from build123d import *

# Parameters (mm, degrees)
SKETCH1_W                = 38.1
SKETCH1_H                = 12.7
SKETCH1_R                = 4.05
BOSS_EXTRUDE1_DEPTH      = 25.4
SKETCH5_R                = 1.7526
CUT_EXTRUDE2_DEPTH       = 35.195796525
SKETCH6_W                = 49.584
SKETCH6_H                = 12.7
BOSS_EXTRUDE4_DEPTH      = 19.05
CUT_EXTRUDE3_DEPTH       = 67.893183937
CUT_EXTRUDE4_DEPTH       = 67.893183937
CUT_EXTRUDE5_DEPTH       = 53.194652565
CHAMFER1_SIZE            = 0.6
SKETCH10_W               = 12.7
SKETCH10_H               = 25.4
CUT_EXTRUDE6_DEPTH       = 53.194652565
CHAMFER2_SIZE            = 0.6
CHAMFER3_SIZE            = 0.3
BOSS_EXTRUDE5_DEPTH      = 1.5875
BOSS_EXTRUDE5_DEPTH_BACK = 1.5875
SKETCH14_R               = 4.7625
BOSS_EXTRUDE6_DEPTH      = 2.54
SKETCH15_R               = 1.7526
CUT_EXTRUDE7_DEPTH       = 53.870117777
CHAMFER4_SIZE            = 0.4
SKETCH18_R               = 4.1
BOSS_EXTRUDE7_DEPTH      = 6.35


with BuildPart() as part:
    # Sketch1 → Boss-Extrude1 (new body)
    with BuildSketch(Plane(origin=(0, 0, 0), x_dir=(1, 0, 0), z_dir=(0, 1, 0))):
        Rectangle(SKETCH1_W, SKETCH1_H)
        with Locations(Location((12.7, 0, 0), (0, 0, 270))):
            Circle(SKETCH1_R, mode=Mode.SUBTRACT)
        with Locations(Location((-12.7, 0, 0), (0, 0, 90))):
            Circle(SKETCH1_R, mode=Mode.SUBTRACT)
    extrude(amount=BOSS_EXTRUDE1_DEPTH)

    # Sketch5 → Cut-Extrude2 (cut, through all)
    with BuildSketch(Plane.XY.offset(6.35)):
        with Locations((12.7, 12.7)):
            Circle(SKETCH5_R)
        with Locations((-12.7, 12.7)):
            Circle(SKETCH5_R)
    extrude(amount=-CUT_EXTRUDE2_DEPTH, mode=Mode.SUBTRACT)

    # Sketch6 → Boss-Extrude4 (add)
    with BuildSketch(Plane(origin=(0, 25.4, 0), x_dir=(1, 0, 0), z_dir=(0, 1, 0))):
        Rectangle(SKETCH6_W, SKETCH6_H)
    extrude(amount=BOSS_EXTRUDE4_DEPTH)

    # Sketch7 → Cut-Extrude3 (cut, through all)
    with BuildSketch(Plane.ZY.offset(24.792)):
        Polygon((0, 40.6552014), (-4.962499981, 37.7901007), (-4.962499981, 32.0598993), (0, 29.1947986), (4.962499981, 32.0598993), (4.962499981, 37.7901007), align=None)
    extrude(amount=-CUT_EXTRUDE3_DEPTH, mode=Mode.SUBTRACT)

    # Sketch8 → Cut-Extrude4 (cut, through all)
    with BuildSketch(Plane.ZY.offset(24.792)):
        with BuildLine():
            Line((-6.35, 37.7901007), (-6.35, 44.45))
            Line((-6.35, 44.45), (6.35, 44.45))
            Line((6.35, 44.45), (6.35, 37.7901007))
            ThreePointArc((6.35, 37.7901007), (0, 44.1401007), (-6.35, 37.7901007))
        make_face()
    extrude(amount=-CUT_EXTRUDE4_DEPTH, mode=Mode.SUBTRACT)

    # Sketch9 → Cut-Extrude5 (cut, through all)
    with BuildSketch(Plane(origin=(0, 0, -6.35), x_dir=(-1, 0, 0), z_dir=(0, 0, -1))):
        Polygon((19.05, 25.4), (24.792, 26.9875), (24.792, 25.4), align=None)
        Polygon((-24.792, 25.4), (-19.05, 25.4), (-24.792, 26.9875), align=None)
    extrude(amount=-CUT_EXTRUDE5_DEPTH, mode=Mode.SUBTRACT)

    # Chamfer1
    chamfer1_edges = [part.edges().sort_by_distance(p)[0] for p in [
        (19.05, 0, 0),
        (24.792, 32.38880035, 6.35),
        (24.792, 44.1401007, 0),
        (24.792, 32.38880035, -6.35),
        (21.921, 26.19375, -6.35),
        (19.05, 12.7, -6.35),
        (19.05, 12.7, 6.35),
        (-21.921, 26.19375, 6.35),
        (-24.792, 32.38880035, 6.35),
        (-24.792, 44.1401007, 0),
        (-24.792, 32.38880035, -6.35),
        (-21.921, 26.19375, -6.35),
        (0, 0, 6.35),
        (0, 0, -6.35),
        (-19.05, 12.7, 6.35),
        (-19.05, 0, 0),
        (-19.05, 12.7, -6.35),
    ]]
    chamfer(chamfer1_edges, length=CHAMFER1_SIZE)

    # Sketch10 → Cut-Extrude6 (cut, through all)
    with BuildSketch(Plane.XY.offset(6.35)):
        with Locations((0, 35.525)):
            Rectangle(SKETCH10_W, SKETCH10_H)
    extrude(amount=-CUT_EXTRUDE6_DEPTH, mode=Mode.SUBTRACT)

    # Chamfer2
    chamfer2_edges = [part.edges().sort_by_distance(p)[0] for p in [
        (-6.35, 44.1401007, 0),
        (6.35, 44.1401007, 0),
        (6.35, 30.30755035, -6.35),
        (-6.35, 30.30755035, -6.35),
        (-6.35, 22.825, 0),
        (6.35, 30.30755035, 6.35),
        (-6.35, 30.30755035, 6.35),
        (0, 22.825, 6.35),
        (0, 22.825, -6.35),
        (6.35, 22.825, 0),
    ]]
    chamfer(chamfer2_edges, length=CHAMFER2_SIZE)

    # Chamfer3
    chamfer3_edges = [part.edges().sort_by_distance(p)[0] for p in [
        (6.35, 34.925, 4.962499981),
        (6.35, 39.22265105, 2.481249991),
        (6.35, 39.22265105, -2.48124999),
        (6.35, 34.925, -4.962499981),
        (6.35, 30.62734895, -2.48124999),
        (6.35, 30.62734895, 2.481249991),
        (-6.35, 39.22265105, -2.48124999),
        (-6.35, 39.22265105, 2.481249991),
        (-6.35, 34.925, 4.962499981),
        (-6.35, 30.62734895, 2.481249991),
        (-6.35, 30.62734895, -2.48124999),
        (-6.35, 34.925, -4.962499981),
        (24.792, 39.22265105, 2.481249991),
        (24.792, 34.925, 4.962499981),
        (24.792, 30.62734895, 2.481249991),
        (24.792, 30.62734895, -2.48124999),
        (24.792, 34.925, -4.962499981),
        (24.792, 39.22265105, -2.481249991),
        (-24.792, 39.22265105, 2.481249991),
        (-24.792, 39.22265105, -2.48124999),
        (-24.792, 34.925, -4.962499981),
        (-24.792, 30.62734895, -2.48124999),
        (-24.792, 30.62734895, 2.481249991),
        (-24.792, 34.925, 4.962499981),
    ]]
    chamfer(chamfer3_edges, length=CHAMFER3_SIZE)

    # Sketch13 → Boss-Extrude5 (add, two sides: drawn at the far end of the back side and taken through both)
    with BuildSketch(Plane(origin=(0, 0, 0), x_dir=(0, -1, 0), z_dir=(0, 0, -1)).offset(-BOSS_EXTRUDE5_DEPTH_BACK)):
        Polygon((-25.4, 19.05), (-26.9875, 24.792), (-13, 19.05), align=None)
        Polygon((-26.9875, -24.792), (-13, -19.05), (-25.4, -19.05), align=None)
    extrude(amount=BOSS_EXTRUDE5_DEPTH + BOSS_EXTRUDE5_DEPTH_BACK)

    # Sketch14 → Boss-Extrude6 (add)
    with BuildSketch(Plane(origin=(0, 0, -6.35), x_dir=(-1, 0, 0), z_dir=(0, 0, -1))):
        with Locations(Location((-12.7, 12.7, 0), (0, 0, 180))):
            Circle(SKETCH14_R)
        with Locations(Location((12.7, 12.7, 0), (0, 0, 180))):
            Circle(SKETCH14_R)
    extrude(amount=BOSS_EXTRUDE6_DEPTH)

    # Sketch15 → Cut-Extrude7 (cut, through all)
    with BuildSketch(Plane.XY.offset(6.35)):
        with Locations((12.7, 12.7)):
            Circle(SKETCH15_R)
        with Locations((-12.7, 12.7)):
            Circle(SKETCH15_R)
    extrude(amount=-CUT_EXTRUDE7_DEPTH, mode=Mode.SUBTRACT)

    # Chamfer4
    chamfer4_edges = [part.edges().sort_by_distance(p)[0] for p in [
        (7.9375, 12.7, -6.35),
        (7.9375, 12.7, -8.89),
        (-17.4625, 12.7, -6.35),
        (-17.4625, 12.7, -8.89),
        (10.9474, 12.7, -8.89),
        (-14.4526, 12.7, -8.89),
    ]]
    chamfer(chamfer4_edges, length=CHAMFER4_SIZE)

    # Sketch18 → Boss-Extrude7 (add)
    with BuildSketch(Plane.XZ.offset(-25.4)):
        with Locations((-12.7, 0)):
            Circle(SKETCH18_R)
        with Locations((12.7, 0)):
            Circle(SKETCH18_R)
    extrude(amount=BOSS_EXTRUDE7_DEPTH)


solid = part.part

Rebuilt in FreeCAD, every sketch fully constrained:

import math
import FreeCAD as App
import Part
import Sketcher
Q = App.Units.Quantity


def edges_at(feature, points):
    """Names of the edges that pass closest to the given points."""
    edges = feature.Shape.Edges
    near = lambda p: min(range(len(edges)), key=lambda i: edges[i].distToShape(Part.Vertex(*p))[0])
    return sorted({f"Edge{near(p) + 1}" for p in points})

doc = App.newDocument("Part")
body = doc.addObject("PartDesign::Body", "Body")

# Sketch on XZ plane
sketch1 = body.newObject("Sketcher::SketchObject", "Sketch")
sketch1.AttachmentSupport = (doc.getObject("XZ_Plane"), [""])
sketch1.MapMode = "FlatFace"
sketch1.addGeometry([
    Part.LineSegment(App.Vector(-19.1, -6.3, 0), App.Vector(-19.1, 6.3, 0)),  # 0
    Part.LineSegment(App.Vector(-19.1, 6.3, 0), App.Vector(19.1, 6.3, 0)),  # 1
    Part.LineSegment(App.Vector(19.1, 6.3, 0), App.Vector(19.1, -6.3, 0)),  # 2
    Part.LineSegment(App.Vector(19.1, -6.3, 0), App.Vector(-19.1, -6.3, 0)),  # 3
    Part.Circle(App.Vector(-12.7, 0, 0), App.Vector(0, 0, 1), 4),  # 4
    Part.Circle(App.Vector(12.7, 0, 0), App.Vector(0, 0, 1), 4),  # 5
], False)
sketch1.addConstraint([
    Sketcher.Constraint("Coincident", 0, 2, 1, 1),
    Sketcher.Constraint("Coincident", 1, 2, 2, 1),
    Sketcher.Constraint("Coincident", 2, 2, 3, 1),
    Sketcher.Constraint("Coincident", 3, 2, 0, 1),
    Sketcher.Constraint("Vertical", 0),
    Sketcher.Constraint("Horizontal", 1),
    Sketcher.Constraint("Vertical", 2),
    Sketcher.Constraint("Horizontal", 3),
    Sketcher.Constraint("Equal", 4, 5),
    Sketcher.Constraint("Symmetric", 4, 3, 5, 3, -1, 1),
    Sketcher.Constraint("Symmetric", 0, 2, 2, 2, -1, 1),
    Sketcher.Constraint("PointOnObject", 4, 3, -1),
    Sketcher.Constraint("DistanceX", 1, 1, 1, 2, Q("1.5 in")),
    Sketcher.Constraint("DistanceY", 0, 1, 0, 2, Q("0.5 in")),
    Sketcher.Constraint("DistanceX", 4, 3, 5, 3, Q("1 in")),
    Sketcher.Constraint("Diameter", 4, Q("8.1 mm")),
])
pad1 = body.newObject("PartDesign::Pad", "Pad")
pad1.Profile = sketch1
pad1.Length = Q("1 in")
pad1.Reversed = True

# Sketch on XY plane
sketch2 = body.newObject("Sketcher::SketchObject", "Sketch001")
sketch2.AttachmentSupport = (doc.getObject("XY_Plane"), [""])
sketch2.MapMode = "FlatFace"
sketch2.AttachmentOffset = App.Placement(App.Vector(0, 0, 0.25 * 25.4), App.Rotation())
sketch2.addGeometry([
    Part.Circle(App.Vector(12.7, 12.7, 0), App.Vector(0, 0, 1), 1.8),
    Part.Circle(App.Vector(-12.7, 12.7, 0), App.Vector(0, 0, 1), 1.8),
], False)
sketch2.addConstraint([
    Sketcher.Constraint("Equal", 0, 1),
    Sketcher.Constraint("Symmetric", 0, 3, 1, 3, -2),
    Sketcher.Constraint("Diameter", 0, Q("0.138 in")),
    Sketcher.Constraint("DistanceX", 1, 3, 0, 3, Q("1 in")),
    Sketcher.Constraint("DistanceY", -1, 1, 0, 3, Q("0.5 in")),
])
pocket1 = body.newObject("PartDesign::Pocket", "Pocket")
pocket1.Profile = sketch2
pocket1.Type = "ThroughAll"

# Sketch on XZ plane
sketch3 = body.newObject("Sketcher::SketchObject", "Sketch002")
sketch3.AttachmentSupport = (doc.getObject("XZ_Plane"), [""])
sketch3.MapMode = "FlatFace"
sketch3.AttachmentOffset = App.Placement(App.Vector(0, 0, -1 * 25.4), App.Rotation())
sketch3.addGeometry([
    Part.LineSegment(App.Vector(-25, -6, 0), App.Vector(-25, 6, 0)),
    Part.LineSegment(App.Vector(-25, 6, 0), App.Vector(25, 6, 0)),
    Part.LineSegment(App.Vector(25, 6, 0), App.Vector(25, -6, 0)),
    Part.LineSegment(App.Vector(25, -6, 0), App.Vector(-25, -6, 0)),
], False)
sketch3.addConstraint([
    Sketcher.Constraint("Coincident", 0, 2, 1, 1),
    Sketcher.Constraint("Coincident", 1, 2, 2, 1),
    Sketcher.Constraint("Coincident", 2, 2, 3, 1),
    Sketcher.Constraint("Coincident", 3, 2, 0, 1),
    Sketcher.Constraint("Vertical", 0),
    Sketcher.Constraint("Horizontal", 1),
    Sketcher.Constraint("Vertical", 2),
    Sketcher.Constraint("Horizontal", 3),
    Sketcher.Constraint("Symmetric", 0, 2, 2, 2, -1, 1),
    Sketcher.Constraint("DistanceY", 0, 1, 0, 2, Q("0.5 in")),
    Sketcher.Constraint("DistanceX", 1, 1, 1, 2, Q("49.584 mm")),
])
pad2 = body.newObject("PartDesign::Pad", "Pad001")
pad2.Profile = sketch3
pad2.Length = Q("0.75 in")
pad2.Reversed = True

# Sketch on YZ plane
sketch4 = body.newObject("Sketcher::SketchObject", "Sketch003")
sketch4.AttachmentSupport = (doc.getObject("YZ_Plane"), [""])
sketch4.MapMode = "FlatFace"
sketch4.AttachmentOffset = App.Placement(App.Vector(0, 0, -24.792), App.Rotation())
sketch4.addGeometry([
    Part.LineSegment(App.Vector(41, 0, 0), App.Vector(38, -5, 0)),  # 0
    Part.LineSegment(App.Vector(38, -5, 0), App.Vector(32, -5, 0)),  # 1
    Part.LineSegment(App.Vector(32, -5, 0), App.Vector(29, 0, 0)),  # 2
    Part.LineSegment(App.Vector(29, 0, 0), App.Vector(32, 5, 0)),  # 3
    Part.LineSegment(App.Vector(32, 5, 0), App.Vector(38, 5, 0)),  # 4
    Part.LineSegment(App.Vector(38, 5, 0), App.Vector(41, 0, 0)),  # 5
], False)
sketch4.addConstraint([
    Sketcher.Constraint("Coincident", 0, 2, 1, 1),
    Sketcher.Constraint("Coincident", 1, 2, 2, 1),
    Sketcher.Constraint("Coincident", 2, 2, 3, 1),
    Sketcher.Constraint("Coincident", 3, 2, 4, 1),
    Sketcher.Constraint("Coincident", 4, 2, 5, 1),
    Sketcher.Constraint("Coincident", 5, 2, 0, 1),
    Sketcher.Constraint("Horizontal", 1),
    Sketcher.Constraint("Horizontal", 4),
    Sketcher.Constraint("Symmetric", 1, 2, 3, 2, -1),
    Sketcher.Constraint("PointOnObject", 2, 2, -1),
    Sketcher.Constraint("PointOnObject", 5, 2, -1),
    Sketcher.Constraint("Parallel", 0, 3),
    Sketcher.Constraint("Parallel", 2, 5),
    Sketcher.Constraint("Angle", 0, Q("-120 deg")),
    Sketcher.Constraint("DistanceX", 1, 2, 1, 1, Q("5.730201 mm")),
    Sketcher.Constraint("Distance", 0, Q("5.730201 mm")),
    Sketcher.Constraint("DistanceX", -1, 1, 0, 2, Q("37.790101 mm")),
])
pocket2 = body.newObject("PartDesign::Pocket", "Pocket001")
pocket2.Profile = sketch4
pocket2.Type = "ThroughAll"
pocket2.Reversed = True

# Sketch on YZ plane
sketch5 = body.newObject("Sketcher::SketchObject", "Sketch004")
sketch5.AttachmentSupport = (doc.getObject("YZ_Plane"), [""])
sketch5.MapMode = "FlatFace"
sketch5.AttachmentOffset = App.Placement(App.Vector(0, 0, -24.792), App.Rotation())
sketch5.addGeometry([
    Part.LineSegment(App.Vector(44, -6, 0), App.Vector(38, -6, 0)),
    Part.ArcOfCircle(Part.Circle(App.Vector(38, 0, 0), App.Vector(0, 0, 1), 6), math.radians(-90), math.radians(90)),
    Part.LineSegment(App.Vector(38, 6, 0), App.Vector(44, 6, 0)),
    Part.LineSegment(App.Vector(44, 6, 0), App.Vector(44, -6, 0)),
], False)
sketch5.addConstraint([
    Sketcher.Constraint("Tangent", 0, 2, 1, 1),
    Sketcher.Constraint("Tangent", 1, 2, 2, 1),
    Sketcher.Constraint("Coincident", 2, 2, 3, 1),
    Sketcher.Constraint("Coincident", 3, 2, 0, 1),
    Sketcher.Constraint("Horizontal", 0),
    Sketcher.Constraint("Horizontal", 2),
    Sketcher.Constraint("Vertical", 3),
    Sketcher.Constraint("PointOnObject", 1, 3, -1),
    Sketcher.Constraint("Radius", 1, Q("0.25 in")),
    Sketcher.Constraint("DistanceX", -1, 1, 2, 2, Q("1.75 in")),
    Sketcher.Constraint("DistanceX", 0, 2, 0, 1, Q("6.659899 mm")),
])
pocket3 = body.newObject("PartDesign::Pocket", "Pocket002")
pocket3.Profile = sketch5
pocket3.Type = "ThroughAll"
pocket3.Reversed = True

# Sketch on XY plane
sketch6 = body.newObject("Sketcher::SketchObject", "Sketch005")
sketch6.AttachmentSupport = (doc.getObject("XY_Plane"), [""])
sketch6.MapMode = "FlatFace"
sketch6.AttachmentOffset = App.Placement(App.Vector(0, 0, -0.25 * 25.4), App.Rotation())
sketch6.addGeometry([
    Part.LineSegment(App.Vector(-24.8, 27, 0), App.Vector(-19.1, 25.4, 0)),  # 0
    Part.LineSegment(App.Vector(-19.1, 25.4, 0), App.Vector(-24.8, 25.4, 0)),  # 1
    Part.LineSegment(App.Vector(-24.8, 25.4, 0), App.Vector(-24.8, 27, 0)),  # 2
    Part.LineSegment(App.Vector(24.8, 25.4, 0), App.Vector(19.1, 25.4, 0)),  # 3
    Part.LineSegment(App.Vector(19.1, 25.4, 0), App.Vector(24.8, 27, 0)),  # 4
    Part.LineSegment(App.Vector(24.8, 27, 0), App.Vector(24.8, 25.4, 0)),  # 5
], False)
sketch6.addConstraint([
    Sketcher.Constraint("Coincident", 0, 2, 1, 1),
    Sketcher.Constraint("Coincident", 1, 2, 2, 1),
    Sketcher.Constraint("Coincident", 2, 2, 0, 1),
    Sketcher.Constraint("Coincident", 3, 2, 4, 1),
    Sketcher.Constraint("Coincident", 4, 2, 5, 1),
    Sketcher.Constraint("Coincident", 5, 2, 3, 1),
    Sketcher.Constraint("Horizontal", 1),
    Sketcher.Constraint("Vertical", 2),
    Sketcher.Constraint("Horizontal", 3),
    Sketcher.Constraint("Vertical", 5),
    Sketcher.Constraint("Symmetric", 0, 2, 3, 2, -2),
    Sketcher.Constraint("Symmetric", 2, 2, 4, 2, -2),
    Sketcher.Constraint("DistanceY", -1, 1, 0, 2, Q("1 in")),
    Sketcher.Constraint("DistanceX", 0, 2, 3, 2, Q("1.5 in")),
    Sketcher.Constraint("DistanceY", 2, 1, 2, 2, Q("0.0625 in")),
    Sketcher.Constraint("DistanceX", 1, 2, 1, 1, Q("5.742 mm")),
])
pocket4 = body.newObject("PartDesign::Pocket", "Pocket003")
pocket4.Profile = sketch6
pocket4.Type = "ThroughAll"
pocket4.Reversed = True
doc.recompute()

chamfer = body.newObject("PartDesign::Chamfer", "Chamfer")
chamfer.Base = (pocket4, edges_at(pocket4, [
    (19.05, 0, 0),
    (24.792, 32.389, 6.35),
    (24.792, 44.14, 0),
    (24.792, 32.389, -6.35),
    (21.921, 26.194, -6.35),
    (19.05, 12.7, -6.35),
    (19.05, 12.7, 6.35),
    (-21.921, 26.194, 6.35),
    (-24.792, 32.389, 6.35),
    (-24.792, 44.14, 0),
    (-24.792, 32.389, -6.35),
    (-21.921, 26.194, -6.35),
    (0, 0, 6.35),
    (0, 0, -6.35),
    (-19.05, 12.7, 6.35),
    (-19.05, 0, 0),
    (-19.05, 12.7, -6.35),
]))
chamfer.Size = 0.6

# Sketch on XY plane
sketch7 = body.newObject("Sketcher::SketchObject", "Sketch006")
sketch7.AttachmentSupport = (doc.getObject("XY_Plane"), [""])
sketch7.MapMode = "FlatFace"
sketch7.AttachmentOffset = App.Placement(App.Vector(0, 0, 0.25 * 25.4), App.Rotation())
sketch7.addGeometry([
    Part.LineSegment(App.Vector(-6, 48, 0), App.Vector(-6, 23, 0)),
    Part.LineSegment(App.Vector(-6, 23, 0), App.Vector(6, 23, 0)),
    Part.LineSegment(App.Vector(6, 23, 0), App.Vector(6, 48, 0)),
    Part.LineSegment(App.Vector(6, 48, 0), App.Vector(-6, 48, 0)),
], False)
sketch7.addConstraint([
    Sketcher.Constraint("Coincident", 0, 2, 1, 1),
    Sketcher.Constraint("Coincident", 1, 2, 2, 1),
    Sketcher.Constraint("Coincident", 2, 2, 3, 1),
    Sketcher.Constraint("Coincident", 3, 2, 0, 1),
    Sketcher.Constraint("Vertical", 0),
    Sketcher.Constraint("Horizontal", 1),
    Sketcher.Constraint("Vertical", 2),
    Sketcher.Constraint("Horizontal", 3),
    Sketcher.Constraint("DistanceY", 0, 2, 0, 1, Q("1 in")),
    Sketcher.Constraint("DistanceX", 1, 1, 1, 2, Q("0.5 in")),
    Sketcher.Constraint("DistanceX", 0, 2, -1, 1, Q("0.25 in")),
    Sketcher.Constraint("DistanceY", -1, 1, 0, 2, Q("22.825 mm")),
])
pocket5 = body.newObject("PartDesign::Pocket", "Pocket004")
pocket5.Profile = sketch7
pocket5.Type = "ThroughAll"
doc.recompute()

chamfer2 = body.newObject("PartDesign::Chamfer", "Chamfer001")
chamfer2.Base = (pocket5, edges_at(pocket5, [
    (-6.35, 44.14, 0),
    (6.35, 44.14, 0),
    (6.35, 30.308, -6.35),
    (-6.35, 30.308, -6.35),
    (-6.35, 22.825, 0),
    (6.35, 30.308, 6.35),
    (-6.35, 30.308, 6.35),
    (0, 22.825, 6.35),
    (0, 22.825, -6.35),
    (6.35, 22.825, 0),
]))
chamfer2.Size = 0.6
doc.recompute()

chamfer3 = body.newObject("PartDesign::Chamfer", "Chamfer002")
chamfer3.Base = (chamfer2, edges_at(chamfer2, [
    (6.35, 34.925, 4.962),
    (6.35, 39.223, 2.481),
    (6.35, 39.223, -2.481),
    (6.35, 34.925, -4.962),
    (6.35, 30.627, -2.481),
    (6.35, 30.627, 2.481),
    (-6.35, 39.223, -2.481),
    (-6.35, 39.223, 2.481),
    (-6.35, 34.925, 4.962),
    (-6.35, 30.627, 2.481),
    (-6.35, 30.627, -2.481),
    (-6.35, 34.925, -4.962),
    (24.792, 39.223, 2.481),
    (24.792, 34.925, 4.962),
    (24.792, 30.627, 2.481),
    (24.792, 30.627, -2.481),
    (24.792, 34.925, -4.962),
    (24.792, 39.223, -2.481),
    (-24.792, 39.223, 2.481),
    (-24.792, 39.223, -2.481),
    (-24.792, 34.925, -4.962),
    (-24.792, 30.627, -2.481),
    (-24.792, 30.627, 2.481),
    (-24.792, 34.925, 4.962),
]))
chamfer3.Size = 0.3

# Sketch on XY plane
sketch8 = body.newObject("Sketcher::SketchObject", "Sketch007")
sketch8.AttachmentSupport = (doc.getObject("XY_Plane"), [""])
sketch8.MapMode = "FlatFace"
sketch8.addGeometry([
    Part.LineSegment(App.Vector(-25, 27, 0), App.Vector(-19, 25, 0)),  # 0
    Part.LineSegment(App.Vector(-19, 25, 0), App.Vector(-19, 13, 0)),  # 1
    Part.LineSegment(App.Vector(-19, 13, 0), App.Vector(-25, 27, 0)),  # 2
    Part.LineSegment(App.Vector(25, 27, 0), App.Vector(19, 13, 0)),  # 3
    Part.LineSegment(App.Vector(19, 13, 0), App.Vector(19, 25, 0)),  # 4
    Part.LineSegment(App.Vector(19, 25, 0), App.Vector(25, 27, 0)),  # 5
], False)
sketch8.addConstraint([
    Sketcher.Constraint("Coincident", 0, 2, 1, 1),
    Sketcher.Constraint("Coincident", 1, 2, 2, 1),
    Sketcher.Constraint("Coincident", 2, 2, 0, 1),
    Sketcher.Constraint("Coincident", 3, 2, 4, 1),
    Sketcher.Constraint("Coincident", 4, 2, 5, 1),
    Sketcher.Constraint("Coincident", 5, 2, 3, 1),
    Sketcher.Constraint("Vertical", 1),
    Sketcher.Constraint("Vertical", 4),
    Sketcher.Constraint("Symmetric", 1, 2, 3, 2, -2),
    Sketcher.Constraint("Symmetric", 2, 2, 5, 2, -2),
    Sketcher.Constraint("Horizontal", 0, 2, 4, 2),
    Sketcher.Constraint("DistanceY", -1, 1, 0, 2, Q("1 in")),
    Sketcher.Constraint("DistanceX", 1, 2, 3, 2, Q("1.5 in")),
    Sketcher.Constraint("DistanceY", -1, 1, 2, 2, Q("1.0625 in")),
    Sketcher.Constraint("DistanceY", 1, 2, 1, 1, Q("12.4 mm")),
    Sketcher.Constraint("DistanceX", 2, 2, -1, 1, Q("24.792 mm")),
])
pad3 = body.newObject("PartDesign::Pad", "Pad002")
pad3.Profile = sketch8
pad3.Type = "TwoLengths"
pad3.Length = Q("0.0625 in")
pad3.Length2 = Q("0.0625 in")
pad3.Reversed = True

# Sketch on XY plane
sketch9 = body.newObject("Sketcher::SketchObject", "Sketch008")
sketch9.AttachmentSupport = (doc.getObject("XY_Plane"), [""])
sketch9.MapMode = "FlatFace"
sketch9.AttachmentOffset = App.Placement(App.Vector(0, 0, -0.25 * 25.4), App.Rotation())
sketch9.addGeometry([
    Part.Circle(App.Vector(12.7, 12.7, 0), App.Vector(0, 0, 1), 4.8),
    Part.Circle(App.Vector(-12.7, 12.7, 0), App.Vector(0, 0, 1), 4.8),
], False)
sketch9.addConstraint([
    Sketcher.Constraint("Equal", 0, 1),
    Sketcher.Constraint("Symmetric", 0, 3, 1, 3, -2),
    Sketcher.Constraint("Diameter", 0, Q("0.375 in")),
    Sketcher.Constraint("DistanceX", 1, 3, 0, 3, Q("1 in")),
    Sketcher.Constraint("DistanceY", -1, 1, 0, 3, Q("0.5 in")),
])
pad4 = body.newObject("PartDesign::Pad", "Pad003")
pad4.Profile = sketch9
pad4.Length = Q("0.1 in")
pad4.Reversed = True

# Sketch on XY plane
sketch10 = body.newObject("Sketcher::SketchObject", "Sketch009")
sketch10.AttachmentSupport = (doc.getObject("XY_Plane"), [""])
sketch10.MapMode = "FlatFace"
sketch10.AttachmentOffset = App.Placement(App.Vector(0, 0, 0.25 * 25.4), App.Rotation())
sketch10.addGeometry([
    Part.Circle(App.Vector(12.7, 12.7, 0), App.Vector(0, 0, 1), 1.8),
    Part.Circle(App.Vector(-12.7, 12.7, 0), App.Vector(0, 0, 1), 1.8),
], False)
sketch10.addConstraint([
    Sketcher.Constraint("Equal", 0, 1),
    Sketcher.Constraint("Symmetric", 0, 3, 1, 3, -2),
    Sketcher.Constraint("Diameter", 0, Q("0.138 in")),
    Sketcher.Constraint("DistanceX", 1, 3, 0, 3, Q("1 in")),
    Sketcher.Constraint("DistanceY", -1, 1, 0, 3, Q("0.5 in")),
])
pocket6 = body.newObject("PartDesign::Pocket", "Pocket005")
pocket6.Profile = sketch10
pocket6.Type = "ThroughAll"
doc.recompute()

chamfer4 = body.newObject("PartDesign::Chamfer", "Chamfer003")
chamfer4.Base = (pocket6, edges_at(pocket6, [
    (7.938, 12.7, -6.35),
    (7.938, 12.7, -8.89),
    (-17.462, 12.7, -6.35),
    (-17.462, 12.7, -8.89),
    (10.947, 12.7, -8.89),
    (-14.453, 12.7, -8.89),
]))
chamfer4.Size = 0.4

# Sketch on XZ plane
sketch11 = body.newObject("Sketcher::SketchObject", "Sketch010")
sketch11.AttachmentSupport = (doc.getObject("XZ_Plane"), [""])
sketch11.MapMode = "FlatFace"
sketch11.AttachmentOffset = App.Placement(App.Vector(0, 0, -1 * 25.4), App.Rotation())
sketch11.addGeometry([
    Part.Circle(App.Vector(-12.7, 0, 0), App.Vector(0, 0, 1), 4.1),
    Part.Circle(App.Vector(12.7, 0, 0), App.Vector(0, 0, 1), 4.1),
], False)
sketch11.addConstraint([
    Sketcher.Constraint("Equal", 0, 1),
    Sketcher.Constraint("Symmetric", 0, 3, 1, 3, -1, 1),
    Sketcher.Constraint("PointOnObject", 0, 3, -1),
    Sketcher.Constraint("DistanceX", 0, 3, 1, 3, Q("1 in")),
    Sketcher.Constraint("Diameter", 0, Q("8.2 mm")),
])
pad5 = body.newObject("PartDesign::Pad", "Pad004")
pad5.Profile = sketch11
pad5.Length = Q("0.25 in")

doc.recompute()
